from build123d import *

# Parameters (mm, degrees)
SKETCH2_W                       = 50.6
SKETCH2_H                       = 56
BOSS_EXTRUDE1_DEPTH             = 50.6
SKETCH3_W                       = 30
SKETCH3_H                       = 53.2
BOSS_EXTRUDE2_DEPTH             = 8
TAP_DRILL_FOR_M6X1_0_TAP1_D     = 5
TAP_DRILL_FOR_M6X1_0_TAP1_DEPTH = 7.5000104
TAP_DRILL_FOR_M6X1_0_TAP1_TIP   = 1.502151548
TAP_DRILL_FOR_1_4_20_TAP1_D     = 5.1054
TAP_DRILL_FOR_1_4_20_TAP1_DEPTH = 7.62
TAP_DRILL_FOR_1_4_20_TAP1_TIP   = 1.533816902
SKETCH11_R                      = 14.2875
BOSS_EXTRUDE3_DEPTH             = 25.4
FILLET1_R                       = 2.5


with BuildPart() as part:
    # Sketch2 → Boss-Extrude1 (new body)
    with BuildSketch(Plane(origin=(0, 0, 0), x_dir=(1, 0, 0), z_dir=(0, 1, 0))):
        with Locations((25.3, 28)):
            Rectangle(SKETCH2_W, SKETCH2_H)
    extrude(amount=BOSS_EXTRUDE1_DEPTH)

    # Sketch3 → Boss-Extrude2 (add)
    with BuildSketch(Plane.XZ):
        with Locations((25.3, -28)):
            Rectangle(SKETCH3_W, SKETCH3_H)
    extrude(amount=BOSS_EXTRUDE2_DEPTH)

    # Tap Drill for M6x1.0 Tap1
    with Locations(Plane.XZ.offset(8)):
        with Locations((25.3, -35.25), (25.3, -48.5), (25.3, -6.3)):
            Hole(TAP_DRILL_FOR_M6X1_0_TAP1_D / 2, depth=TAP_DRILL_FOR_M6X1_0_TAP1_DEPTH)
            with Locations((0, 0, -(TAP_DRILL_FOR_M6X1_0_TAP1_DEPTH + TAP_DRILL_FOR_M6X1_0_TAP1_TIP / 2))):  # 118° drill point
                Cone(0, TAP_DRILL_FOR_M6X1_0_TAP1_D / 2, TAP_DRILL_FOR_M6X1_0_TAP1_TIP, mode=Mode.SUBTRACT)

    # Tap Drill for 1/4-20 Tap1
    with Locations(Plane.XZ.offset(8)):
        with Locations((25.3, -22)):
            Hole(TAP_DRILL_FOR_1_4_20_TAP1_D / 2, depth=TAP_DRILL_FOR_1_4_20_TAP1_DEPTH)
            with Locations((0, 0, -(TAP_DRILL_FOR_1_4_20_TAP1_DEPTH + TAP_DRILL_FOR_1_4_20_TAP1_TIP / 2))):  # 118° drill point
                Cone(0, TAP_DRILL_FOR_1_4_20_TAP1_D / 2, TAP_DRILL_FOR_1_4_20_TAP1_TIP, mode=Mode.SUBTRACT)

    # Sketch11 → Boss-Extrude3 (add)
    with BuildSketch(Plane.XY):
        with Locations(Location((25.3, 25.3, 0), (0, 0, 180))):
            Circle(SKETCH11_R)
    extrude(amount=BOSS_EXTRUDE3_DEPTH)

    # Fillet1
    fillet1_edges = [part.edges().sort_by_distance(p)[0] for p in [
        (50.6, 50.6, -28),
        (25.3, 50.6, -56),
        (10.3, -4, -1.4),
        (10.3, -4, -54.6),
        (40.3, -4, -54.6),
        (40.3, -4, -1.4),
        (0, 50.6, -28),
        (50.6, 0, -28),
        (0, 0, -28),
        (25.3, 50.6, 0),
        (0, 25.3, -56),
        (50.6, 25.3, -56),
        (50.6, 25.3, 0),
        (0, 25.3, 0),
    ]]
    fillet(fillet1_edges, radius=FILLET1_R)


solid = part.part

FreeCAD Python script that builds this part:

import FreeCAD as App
import Part
import Sketcher
from FreeCAD import Vector


def edges_at(feature, points):
    """Names of the edges that pass closest to the given points."""
    edges = feature.Shape.Edges
    near = lambda p: min(range(len(edges)), key=lambda i: edges[i].distToShape(Part.Vertex(*p))[0])
    return sorted({f"Edge{near(p) + 1}" for p in points})


def add_polygon(sketch, points):
    """Adds a closed chain of lines whose ends are joined by coincident constraints."""
    first, n = sketch.GeometryCount, len(points)
    for a, b in zip(points, points[1:] + points[:1]):
        sketch.addGeometry(Part.LineSegment(App.Vector(*a, 0), App.Vector(*b, 0)), False)
    for i in range(n):
        sketch.addConstraint(Sketcher.Constraint("Coincident", first + i, 2, first + (i + 1) % n, 1))

doc = App.newDocument("Part")
body = doc.addObject("PartDesign::Body", "Body")

# Sketch on XZ plane
sketch1 = body.newObject("Sketcher::SketchObject", "Sketch")
sketch1.AttachmentSupport = (doc.getObject("XZ_Plane"), [""])
sketch1.MapMode = "FlatFace"
add_polygon(sketch1, [(0, -56), (0, 0), (51, 0), (51, -56)])  # lines 0-3
sketch1.addConstraint(Sketcher.Constraint("Vertical", 0))
sketch1.addConstraint(Sketcher.Constraint("Horizontal", 1))
sketch1.addConstraint(Sketcher.Constraint("Vertical", 2))
sketch1.addConstraint(Sketcher.Constraint("Horizontal", 3))
sketch1.addConstraint(Sketcher.Constraint("Coincident", 0, 2, -1, 1))
sketch1.addConstraint(Sketcher.Constraint("DistanceY", 0, 1, 0, 2, 56.0))
sketch1.addConstraint(Sketcher.Constraint("DistanceX", 1, 1, 1, 2, 50.6))
pad1 = body.newObject("PartDesign::Pad", "Pad")
pad1.Profile = sketch1
pad1.Length = 50.6
pad1.Reversed = True

# Sketch on XZ plane
sketch2 = body.newObject("Sketcher::SketchObject", "Sketch001")
sketch2.AttachmentSupport = (doc.getObject("XZ_Plane"), [""])
sketch2.MapMode = "FlatFace"
add_polygon(sketch2, [(10, -1), (10, -55), (40, -55), (40, -1)])  # lines 0-3
sketch2.addConstraint(Sketcher.Constraint("Vertical", 0))
sketch2.addConstraint(Sketcher.Constraint("Horizontal", 1))
sketch2.addConstraint(Sketcher.Constraint("Vertical", 2))
sketch2.addConstraint(Sketcher.Constraint("Horizontal", 3))
sketch2.addConstraint(Sketcher.Constraint("DistanceX", 1, 1, 1, 2, 30.0))
sketch2.addConstraint(Sketcher.Constraint("DistanceY", 0, 2, 0, 1, 53.2))
sketch2.addConstraint(Sketcher.Constraint("DistanceX", -1, 1, 0, 2, 10.3))
sketch2.addConstraint(Sketcher.Constraint("DistanceY", 0, 2, -1, 1, 54.6))
pad2 = body.newObject("PartDesign::Pad", "Pad001")
pad2.Profile = sketch2
pad2.Length = 8

# Sketch on XZ plane
sketch3 = body.newObject("Sketcher::SketchObject", "Sketch002")
sketch3.AttachmentSupport = (doc.getObject("XZ_Plane"), [""])
sketch3.MapMode = "FlatFace"
sketch3.AttachmentOffset = App.Placement(Vector(0, 0, 8), App.Rotation())
sketch3.addGeometry(Part.Circle(Vector(25.3, -35.2, 0), Vector(0, 0, 1), 2.5), False)
sketch3.addGeometry(Part.Circle(Vector(25.3, -48.5, 0), Vector(0, 0, 1), 2.5), False)
sketch3.addGeometry(Part.Circle(Vector(25.3, -6.3, 0), Vector(0, 0, 1), 2.5), False)
sketch3.addConstraint(Sketcher.Constraint("Equal", 0, 1))
sketch3.addConstraint(Sketcher.Constraint("Equal", 1, 2))
sketch3.addConstraint(Sketcher.Constraint("Vertical", 0, 3, 1, 3))
sketch3.addConstraint(Sketcher.Constraint("Vertical", 1, 3, 2, 3))
sketch3.addConstraint(Sketcher.Constraint("Diameter", 0, 5.0))
sketch3.addConstraint(Sketcher.Constraint("DistanceX", -1, 1, 0, 3, 25.3))
sketch3.addConstraint(Sketcher.Constraint("DistanceY", 1, 3, -1, 1, 48.5))
sketch3.addConstraint(Sketcher.Constraint("DistanceY", 2, 3, -1, 1, 6.3))
sketch3.addConstraint(Sketcher.Constraint("DistanceY", 0, 3, -1, 1, 35.25))
doc.recompute()
hole = body.newObject("PartDesign::Hole", "Hole")
hole.Profile = sketch3
hole.ThreadType = "None"
hole.Diameter = 5
hole.DepthType = "Dimension"
hole.Depth = 7.50001
hole.DrillPoint = "Angled"
hole.DrillPointAngle = 118

# Sketch on XZ plane
sketch4 = body.newObject("Sketcher::SketchObject", "Sketch003")
sketch4.AttachmentSupport = (doc.getObject("XZ_Plane"), [""])
sketch4.MapMode = "FlatFace"
sketch4.AttachmentOffset = App.Placement(Vector(0, 0, 8), App.Rotation())
sketch4.addGeometry(Part.Circle(Vector(25.3, -22, 0), Vector(0, 0, 1), 2.6), False)
sketch4.addConstraint(Sketcher.Constraint("DistanceY", 0, 3, -1, 1, 22.0))
sketch4.addConstraint(Sketcher.Constraint("Diameter", 0, 5.1054))
sketch4.addConstraint(Sketcher.Constraint("DistanceX", -1, 1, 0, 3, 25.3))
doc.recompute()
hole2 = body.newObject("PartDesign::Hole", "Hole001")
hole2.Profile = sketch4
hole2.ThreadType = "None"
hole2.Diameter = 5.1054
hole2.DepthType = "Dimension"
hole2.Depth = 7.62
hole2.DrillPoint = "Angled"
hole2.DrillPointAngle = 118

# Sketch on XY plane
sketch5 = body.newObject("Sketcher::SketchObject", "Sketch004")
sketch5.AttachmentSupport = (doc.getObject("XY_Plane"), [""])
sketch5.MapMode = "FlatFace"
sketch5.addGeometry(Part.Circle(Vector(25, 25, 0), Vector(0, 0, 1), 14), False)
sketch5.addConstraint(Sketcher.Constraint("Diameter", 0, 28.575))
sketch5.addConstraint(Sketcher.Constraint("DistanceX", -1, 1, 0, 3, 25.3))
sketch5.addConstraint(Sketcher.Constraint("DistanceY", -1, 1, 0, 3, 25.3))
pad3 = body.newObject("PartDesign::Pad", "Pad002")
pad3.Profile = sketch5
pad3.Length = 25.4
doc.recompute()

fillet = body.newObject("PartDesign::Fillet", "Fillet")
fillet.Base = (pad3, edges_at(pad3, [
    (50.6, 50.6, -28),
    (25.3, 50.6, -56),
    (10.3, -4, -1.4),
    (10.3, -4, -54.6),
    (40.3, -4, -54.6),
    (40.3, -4, -1.4),
    (0, 50.6, -28),
    (50.6, 0, -28),
    (0, 0, -28),
    (25.3, 50.6, 0),
    (0, 25.3, -56),
    (50.6, 25.3, -56),
    (50.6, 25.3, 0),
    (0, 25.3, 0),
]))
fillet.Radius = 2.5

doc.recompute()
